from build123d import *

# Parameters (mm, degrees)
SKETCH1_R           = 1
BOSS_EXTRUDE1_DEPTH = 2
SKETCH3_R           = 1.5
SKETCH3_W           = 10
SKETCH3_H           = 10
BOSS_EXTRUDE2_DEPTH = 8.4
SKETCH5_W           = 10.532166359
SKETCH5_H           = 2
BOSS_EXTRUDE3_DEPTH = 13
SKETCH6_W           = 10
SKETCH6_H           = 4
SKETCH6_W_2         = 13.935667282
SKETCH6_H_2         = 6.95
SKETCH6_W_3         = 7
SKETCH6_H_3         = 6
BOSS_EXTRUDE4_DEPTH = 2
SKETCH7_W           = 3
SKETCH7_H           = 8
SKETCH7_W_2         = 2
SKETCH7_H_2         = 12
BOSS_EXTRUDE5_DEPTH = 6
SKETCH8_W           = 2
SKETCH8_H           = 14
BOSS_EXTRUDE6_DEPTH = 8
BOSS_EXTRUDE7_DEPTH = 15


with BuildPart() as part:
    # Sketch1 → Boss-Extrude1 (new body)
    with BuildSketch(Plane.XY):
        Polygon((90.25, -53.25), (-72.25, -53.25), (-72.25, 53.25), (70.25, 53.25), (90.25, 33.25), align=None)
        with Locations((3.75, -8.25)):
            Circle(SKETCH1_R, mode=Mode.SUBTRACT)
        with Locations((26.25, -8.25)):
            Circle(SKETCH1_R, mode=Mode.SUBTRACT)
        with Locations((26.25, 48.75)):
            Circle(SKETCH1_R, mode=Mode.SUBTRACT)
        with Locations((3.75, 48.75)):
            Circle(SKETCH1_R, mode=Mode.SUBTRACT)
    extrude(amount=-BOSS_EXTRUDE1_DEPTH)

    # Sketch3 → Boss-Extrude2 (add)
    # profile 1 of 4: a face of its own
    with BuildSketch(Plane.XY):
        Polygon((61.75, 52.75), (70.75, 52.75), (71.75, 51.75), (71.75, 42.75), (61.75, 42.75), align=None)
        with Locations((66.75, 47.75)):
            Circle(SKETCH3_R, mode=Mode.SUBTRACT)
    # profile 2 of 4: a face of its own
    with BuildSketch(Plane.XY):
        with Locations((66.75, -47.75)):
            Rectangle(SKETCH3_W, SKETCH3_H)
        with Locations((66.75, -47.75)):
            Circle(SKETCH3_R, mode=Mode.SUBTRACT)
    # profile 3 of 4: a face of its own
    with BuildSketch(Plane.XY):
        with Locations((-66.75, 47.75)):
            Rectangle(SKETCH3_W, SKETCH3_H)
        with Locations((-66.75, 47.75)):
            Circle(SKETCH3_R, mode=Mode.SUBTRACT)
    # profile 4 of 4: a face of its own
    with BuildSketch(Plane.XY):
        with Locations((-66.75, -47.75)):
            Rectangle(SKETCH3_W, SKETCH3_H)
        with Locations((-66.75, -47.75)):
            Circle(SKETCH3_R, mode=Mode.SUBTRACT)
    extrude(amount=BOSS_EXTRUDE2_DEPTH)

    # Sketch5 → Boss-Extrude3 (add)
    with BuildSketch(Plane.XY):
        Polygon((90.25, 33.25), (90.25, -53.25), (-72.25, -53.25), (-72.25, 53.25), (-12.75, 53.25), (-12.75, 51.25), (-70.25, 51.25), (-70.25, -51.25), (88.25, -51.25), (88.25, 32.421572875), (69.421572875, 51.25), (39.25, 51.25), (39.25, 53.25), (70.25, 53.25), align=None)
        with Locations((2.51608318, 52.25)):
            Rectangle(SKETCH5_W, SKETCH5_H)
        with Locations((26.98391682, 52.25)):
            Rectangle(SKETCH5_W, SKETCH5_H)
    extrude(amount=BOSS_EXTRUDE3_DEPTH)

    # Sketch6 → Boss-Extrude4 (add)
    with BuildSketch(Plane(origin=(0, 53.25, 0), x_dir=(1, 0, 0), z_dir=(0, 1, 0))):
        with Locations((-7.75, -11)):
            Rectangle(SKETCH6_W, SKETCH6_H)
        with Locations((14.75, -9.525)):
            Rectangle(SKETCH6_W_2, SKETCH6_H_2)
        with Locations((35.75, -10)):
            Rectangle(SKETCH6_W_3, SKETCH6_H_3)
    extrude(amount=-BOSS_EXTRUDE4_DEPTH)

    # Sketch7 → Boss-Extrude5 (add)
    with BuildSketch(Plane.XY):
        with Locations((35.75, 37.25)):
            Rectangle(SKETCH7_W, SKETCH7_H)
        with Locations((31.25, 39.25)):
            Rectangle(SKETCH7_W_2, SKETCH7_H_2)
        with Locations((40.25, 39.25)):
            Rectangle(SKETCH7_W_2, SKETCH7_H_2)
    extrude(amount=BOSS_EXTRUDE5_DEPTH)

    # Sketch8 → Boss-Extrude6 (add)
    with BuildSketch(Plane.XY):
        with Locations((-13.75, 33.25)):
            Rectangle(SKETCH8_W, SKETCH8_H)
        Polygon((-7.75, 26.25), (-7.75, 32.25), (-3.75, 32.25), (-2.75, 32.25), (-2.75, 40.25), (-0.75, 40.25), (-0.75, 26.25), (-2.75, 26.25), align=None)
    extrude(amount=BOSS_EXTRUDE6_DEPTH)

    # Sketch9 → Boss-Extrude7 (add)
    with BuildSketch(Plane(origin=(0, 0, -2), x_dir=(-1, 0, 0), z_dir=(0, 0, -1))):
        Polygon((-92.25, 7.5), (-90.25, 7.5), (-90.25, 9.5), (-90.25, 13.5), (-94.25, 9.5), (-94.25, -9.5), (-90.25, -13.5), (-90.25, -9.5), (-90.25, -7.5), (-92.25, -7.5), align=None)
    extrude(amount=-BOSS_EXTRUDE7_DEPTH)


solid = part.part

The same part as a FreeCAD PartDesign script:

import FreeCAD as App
import Part
import Sketcher

V = App.Vector
Q = App.Units.Quantity


def add_polygon(sketch, points):
    """Adds a closed chain of lines whose ends are joined by coincident constraints."""
    first, n = sketch.GeometryCount, len(points)
    for a, b in zip(points, points[1:] + points[:1]):
        sketch.addGeometry(Part.LineSegment(App.Vector(*a, 0), App.Vector(*b, 0)), False)
    for i in range(n):
        sketch.addConstraint(Sketcher.Constraint("Coincident", first + i, 2, first + (i + 1) % n, 1))

doc = App.newDocument("Part")
body = doc.addObject("PartDesign::Body", "Body")

sketch1 = doc.addObject("Sketcher::SketchObject", "Sketch")
body.addObject(sketch1)
sketch1.AttachmentSupport = (doc.XY_Plane, [""])
sketch1.MapMode = "FlatFace"
add_polygon(sketch1, [(-72.25, -53.25), (90.25, -53.25), (90.25, 33.25), (70.25, 53.25), (-72.25, 53.25)])
sketch1.addGeometry(Part.Circle(V(26.25, -8.25, 0), V(0, 0, 1), 1), False)
sketch1.addGeometry(Part.Circle(V(3.75, -8.25, 0), V(0, 0, 1), 1), False)
sketch1.addGeometry(Part.Circle(V(26.25, 48.75, 0), V(0, 0, 1), 1), False)
sketch1.addGeometry(Part.Circle(V(3.75, 48.75, 0), V(0, 0, 1), 1), False)
sketch1.addConstraint([
    Sketcher.Constraint("Horizontal", 0),
    Sketcher.Constraint("Vertical", 1),
    Sketcher.Constraint("Horizontal", 3),
    Sketcher.Constraint("Vertical", 4),
    Sketcher.Constraint("Equal", 5, 6),
    Sketcher.Constraint("Equal", 6, 7),
    Sketcher.Constraint("Equal", 7, 8),
    Sketcher.Constraint("Horizontal", 5, 3, 6, 3),
    Sketcher.Constraint("Horizontal", 7, 3, 8, 3),
    Sketcher.Constraint("Vertical", 5, 3, 7, 3),
    Sketcher.Constraint("Vertical", 6, 3, 8, 3),
    Sketcher.Constraint("Diameter", 5, 2.0),
    Sketcher.Constraint("Angle", 2, Q("135 deg")),
    Sketcher.Constraint("DistanceX", 0, 1, 0, 2, 162.5),
    Sketcher.Constraint("DistanceX", 3, 2, 3, 1, 142.5),
    Sketcher.Constraint("DistanceY", 1, 1, 1, 2, 86.5),
    Sketcher.Constraint("DistanceY", 5, 3, 7, 3, 57.0),
    Sketcher.Constraint("DistanceX", 5, 3, 0, 2, 64.0),
    Sketcher.Constraint("DistanceY", 0, 2, 5, 3, 45.0),
    Sketcher.Constraint("DistanceX", 3, 2, 8, 3, 76.0),
    Sketcher.Constraint("DistanceX", -1, 1, 5, 3, 26.25),
    Sketcher.Constraint("DistanceY", 5, 3, -1, 1, 8.25),
])
pad1 = doc.addObject("PartDesign::Pad", "Pad")
body.addObject(pad1)
pad1.Profile = sketch1
pad1.Length = 2
pad1.Reversed = True

sketch2 = doc.addObject("Sketcher::SketchObject", "Sketch001")
body.addObject(sketch2)
sketch2.AttachmentSupport = (doc.XY_Plane, [""])
sketch2.MapMode = "FlatFace"
add_polygon(sketch2, [(70.75, 52.75), (61.75, 52.75), (61.75, 42.75), (71.75, 42.75), (71.75, 51.75)])
sketch2.addGeometry(Part.Circle(V(66.75, 47.75, 0), V(0, 0, 1), 1.5), False)
add_polygon(sketch2, [(61.75, -42.75), (61.75, -52.75), (71.75, -52.75), (71.75, -42.75)])
sketch2.addGeometry(Part.Circle(V(66.75, -47.75, 0), V(0, 0, 1), 1.5), False)
add_polygon(sketch2, [(-71.75, 52.75), (-71.75, 42.75), (-61.75, 42.75), (-61.75, 52.75)])
sketch2.addGeometry(Part.Circle(V(-66.75, 47.75, 0), V(0, 0, 1), 1.5), False)
add_polygon(sketch2, [(-71.75, -42.75), (-71.75, -52.75), (-61.75, -52.75), (-61.75, -42.75)])
sketch2.addGeometry(Part.Circle(V(-66.75, -47.75, 0), V(0, 0, 1), 1.5), False)
sketch2.addConstraint([
    Sketcher.Constraint("Horizontal", 0),
    Sketcher.Constraint("Vertical", 1),
    Sketcher.Constraint("Horizontal", 2),
    Sketcher.Constraint("Vertical", 3),
    Sketcher.Constraint("Vertical", 6),
    Sketcher.Constraint("Horizontal", 7),
    Sketcher.Constraint("Vertical", 8),
    Sketcher.Constraint("Horizontal", 9),
    Sketcher.Constraint("Vertical", 11),
    Sketcher.Constraint("Horizontal", 12),
    Sketcher.Constraint("Vertical", 13),
    Sketcher.Constraint("Horizontal", 14),
    Sketcher.Constraint("Vertical", 16),
    Sketcher.Constraint("Horizontal", 17),
    Sketcher.Constraint("Vertical", 18),
    Sketcher.Constraint("Horizontal", 19),
    Sketcher.Constraint("Equal", 5, 10),
    Sketcher.Constraint("Equal", 10, 15),
    Sketcher.Constraint("Equal", 15, 20),
    Sketcher.Constraint("Symmetric", 10, 3, 15, 3, -1, 1),
    Sketcher.Constraint("Symmetric", 5, 3, 20, 3, -1, 1),
    Sketcher.Constraint("Symmetric", 8, 2, 11, 2, -1, 1),
    Sketcher.Constraint("Symmetric", 6, 2, 13, 2, -1, 1),
    Sketcher.Constraint("Symmetric", 0, 2, 17, 2, -1, 1),
    Sketcher.Constraint("Symmetric", 2, 2, 19, 2, -1, 1),
    Sketcher.Constraint("Symmetric", 5, 3, 15, 3, -2),
    Sketcher.Constraint("Symmetric", 2, 2, 11, 2, -2),
    Sketcher.Constraint("Symmetric", 0, 2, 13, 2, -2),
    Sketcher.Constraint("Equal", 19, 1),
    Sketcher.Constraint("Equal", 0, 3),
    Sketcher.Constraint("Diameter", 5, 3.0),
    Sketcher.Constraint("DistanceX", 0, 2, 0, 1, 9.0),
    Sketcher.Constraint("DistanceX", 2, 1, 2, 2, 10.0),
    Sketcher.Constraint("DistanceX", 0, 2, 5, 3, 5.0),
    Sketcher.Constraint("DistanceY", 5, 3, 0, 2, 5.0),
    Sketcher.Constraint("DistanceY", 10, 3, 5, 3, 95.5),
    Sketcher.Constraint("DistanceX", 15, 3, 5, 3, 133.5),
])
pad2 = doc.addObject("PartDesign::Pad", "Pad001")
body.addObject(pad2)
pad2.Profile = sketch2
pad2.Length = 8.4

sketch3 = doc.addObject("Sketcher::SketchObject", "Sketch002")
body.addObject(sketch3)
sketch3.AttachmentSupport = (doc.XY_Plane, [""])
sketch3.MapMode = "FlatFace"
add_polygon(sketch3, [(90.25, -53.25), (90.25, 33.25), (70.25, 53.25), (39.25, 53.25), (39.25, 51.25), (69.421573, 51.25), (88.25, 32.421573), (88.25, -51.25), (-70.25, -51.25), (-70.25, 51.25), (-12.75, 51.25), (-12.75, 53.25), (-72.25, 53.25), (-72.25, -53.25)])
add_polygon(sketch3, [(-2.75, 53.25), (-2.75, 51.25), (7.782166, 51.25), (7.782166, 53.25)])
add_polygon(sketch3, [(21.717834, 53.25), (21.717834, 51.25), (32.25, 51.25), (32.25, 53.25)])
sketch3.addConstraint([
    Sketcher.Constraint("Vertical", 0),
    Sketcher.Constraint("Horizontal", 2),
    Sketcher.Constraint("Vertical", 3),
    Sketcher.Constraint("Horizontal", 4),
    Sketcher.Constraint("Vertical", 6),
    Sketcher.Constraint("Horizontal", 7),
    Sketcher.Constraint("Vertical", 8),
    Sketcher.Constraint("Horizontal", 9),
    Sketcher.Constraint("Vertical", 10),
    Sketcher.Constraint("Horizontal", 11),
    Sketcher.Constraint("Vertical", 12),
    Sketcher.Constraint("Horizontal", 13),
    Sketcher.Constraint("Vertical", 14),
    Sketcher.Constraint("Horizontal", 15),
    Sketcher.Constraint("Vertical", 16),
    Sketcher.Constraint("Horizontal", 17),
    Sketcher.Constraint("Vertical", 18),
    Sketcher.Constraint("Horizontal", 19),
    Sketcher.Constraint("Vertical", 20),
    Sketcher.Constraint("Horizontal", 21),
    Sketcher.Constraint("Parallel", 1, 5),
    Sketcher.Constraint("Horizontal", 4, 2, 8, 2),
    Sketcher.Constraint("Horizontal", 2, 2, 10, 2),
    Sketcher.Constraint("Horizontal", 9, 2, 14, 2),
    Sketcher.Constraint("Horizontal", 11, 2, 16, 2),
    Sketcher.Constraint("Horizontal", 15, 2, 18, 2),
    Sketcher.Constraint("Horizontal", 17, 2, 20, 2),
    Sketcher.Constraint("Equal", 17, 19),
    Sketcher.Constraint("DistanceX", 2, 2, 2, 1, 31.0),
    Sketcher.Constraint("DistanceY", 3, 2, 3, 1, 2.0),
    Sketcher.Constraint("Angle", 1, Q("135 deg")),
    Sketcher.Constraint("DistanceX", 7, 2, 7, 1, 158.5),
    Sketcher.Constraint("DistanceX", 9, 1, 9, 2, 57.5),
    Sketcher.Constraint("DistanceX", 11, 2, 11, 1, 59.5),
    Sketcher.Constraint("DistanceX", 13, 1, 13, 2, 162.5),
    Sketcher.Constraint("DistanceY", 0, 1, 0, 2, 86.5),
    Sketcher.Constraint("DistanceY", 8, 1, 8, 2, 102.5),
    Sketcher.Constraint("DistanceY", 12, 2, 12, 1, 106.5),
    Sketcher.Constraint("DistanceX", 9, 2, 14, 2, 10.0),
    Sketcher.Constraint("DistanceX", 19, 2, 3, 2, 7.0),
    Sketcher.Constraint("DistanceX", -1, 1, 0, 2, 90.25),
    Sketcher.Constraint("DistanceY", -1, 1, 0, 2, 33.25),
    Sketcher.Constraint("DistanceX", 4, 1, 4, 2, 30.171573),
    Sketcher.Constraint("DistanceX", 15, 1, 15, 2, 10.532166),
])
pad3 = doc.addObject("PartDesign::Pad", "Pad002")
body.addObject(pad3)
pad3.Profile = sketch3
pad3.Length = 13

sketch4 = doc.addObject("Sketcher::SketchObject", "Sketch003")
body.addObject(sketch4)
sketch4.AttachmentSupport = (doc.XZ_Plane, [""])
sketch4.MapMode = "FlatFace"
sketch4.AttachmentOffset = App.Placement(V(0, 0, -53.25), App.Rotation())
add_polygon(sketch4, [(-12.75, 9), (-12.75, 13), (-2.75, 13), (-2.75, 9)])
add_polygon(sketch4, [(7.782166, 6.05), (7.782166, 13), (21.717834, 13), (21.717834, 6.05)])
add_polygon(sketch4, [(32.25, 7), (32.25, 13), (39.25, 13), (39.25, 7)])
sketch4.addConstraint([
    Sketcher.Constraint("Vertical", 0),
    Sketcher.Constraint("Horizontal", 1),
    Sketcher.Constraint("Vertical", 2),
    Sketcher.Constraint("Horizontal", 3),
    Sketcher.Constraint("Vertical", 4),
    Sketcher.Constraint("Horizontal", 5),
    Sketcher.Constraint("Vertical", 6),
    Sketcher.Constraint("Horizontal", 7),
    Sketcher.Constraint("Vertical", 8),
    Sketcher.Constraint("Horizontal", 9),
    Sketcher.Constraint("Vertical", 10),
    Sketcher.Constraint("Horizontal", 11),
    Sketcher.Constraint("Horizontal", 1, 2, 4, 2),
    Sketcher.Constraint("Horizontal", 5, 2, 8, 2),
    Sketcher.Constraint("DistanceX", 1, 1, 1, 2, 10.0),
    Sketcher.Constraint("DistanceX", 9, 1, 9, 2, 7.0),
    Sketcher.Constraint("DistanceY", 0, 1, 0, 2, 4.0),
    Sketcher.Constraint("DistanceY", 8, 1, 8, 2, 6.0),
    Sketcher.Constraint("DistanceY", -1, 1, 0, 2, 13.0),
    Sketcher.Constraint("DistanceX", 1, 2, 8, 2, 35.0),
    Sketcher.Constraint("DistanceY", 4, 1, 4, 2, 6.95),
    Sketcher.Constraint("DistanceX", 0, 2, -1, 1, 12.75),
    Sketcher.Constraint("DistanceX", 5, 1, 5, 2, 13.935667),
    Sketcher.Constraint("DistanceX", -1, 1, 4, 2, 7.782166),
])
pad4 = doc.addObject("PartDesign::Pad", "Pad003")
body.addObject(pad4)
pad4.Profile = sketch4
pad4.Length = 2

sketch5 = doc.addObject("Sketcher::SketchObject", "Sketch004")
body.addObject(sketch5)
sketch5.AttachmentSupport = (doc.XY_Plane, [""])
sketch5.MapMode = "FlatFace"
add_polygon(sketch5, [(34.25, 41.25), (34.25, 33.25), (37.25, 33.25), (37.25, 41.25)])
add_polygon(sketch5, [(30.25, 45.25), (30.25, 33.25), (32.25, 33.25), (32.25, 45.25)])
add_polygon(sketch5, [(39.25, 45.25), (39.25, 33.25), (41.25, 33.25), (41.25, 45.25)])
sketch5.addConstraint([
    Sketcher.Constraint("Vertical", 0),
    Sketcher.Constraint("Horizontal", 1),
    Sketcher.Constraint("Vertical", 2),
    Sketcher.Constraint("Horizontal", 3),
    Sketcher.Constraint("Vertical", 4),
    Sketcher.Constraint("Horizontal", 5),
    Sketcher.Constraint("Vertical", 6),
    Sketcher.Constraint("Horizontal", 7),
    Sketcher.Constraint("Vertical", 8),
    Sketcher.Constraint("Horizontal", 9),
    Sketcher.Constraint("Vertical", 10),
    Sketcher.Constraint("Horizontal", 11),
    Sketcher.Constraint("Horizontal", 1, 2, 4, 2),
    Sketcher.Constraint("Horizontal", 5, 2, 8, 2),
    Sketcher.Constraint("Horizontal", 7, 2, 10, 2),
    Sketcher.Constraint("Equal", 7, 9),
    Sketcher.Constraint("DistanceX", 1, 1, 1, 2, 3.0),
    Sketcher.Constraint("DistanceX", 5, 1, 5, 2, 2.0),
    Sketcher.Constraint("DistanceY", 0, 2, 0, 1, 8.0),
    Sketcher.Constraint("DistanceY", 4, 2, 4, 1, 12.0),
    Sketcher.Constraint("DistanceX", 4, 2, 0, 2, 4.0),
    Sketcher.Constraint("DistanceX", 1, 2, 8, 2, 2.0),
    Sketcher.Constraint("DistanceX", -1, 1, 0, 2, 34.25),
    Sketcher.Constraint("DistanceY", -1, 1, 0, 2, 33.25),
])
pad5 = doc.addObject("PartDesign::Pad", "Pad004")
body.addObject(pad5)
pad5.Profile = sketch5
pad5.Length = 6

sketch6 = doc.addObject("Sketcher::SketchObject", "Sketch005")
body.addObject(sketch6)
sketch6.AttachmentSupport = (doc.XY_Plane, [""])
sketch6.MapMode = "FlatFace"
add_polygon(sketch6, [(-14.75, 40.25), (-14.75, 26.25), (-12.75, 26.25), (-12.75, 40.25)])
add_polygon(sketch6, [(-7.75, 32.25), (-7.75, 26.25), (-0.75, 26.25), (-0.75, 40.25), (-2.75, 40.25), (-2.75, 32.25)])
sketch6.addConstraint([
    Sketcher.Constraint("Vertical", 0),
    Sketcher.Constraint("Horizontal", 1),
    Sketcher.Constraint("Vertical", 2),
    Sketcher.Constraint("Horizontal", 3),
    Sketcher.Constraint("Vertical", 4),
    Sketcher.Constraint("Horizontal", 5),
    Sketcher.Constraint("Vertical", 6),
    Sketcher.Constraint("Horizontal", 7),
    Sketcher.Constraint("Vertical", 8),
    Sketcher.Constraint("Horizontal", 9),
    Sketcher.Constraint("Horizontal", 1, 2, 4, 2),
    Sketcher.Constraint("Horizontal", 3, 2, 6, 2),
    Sketcher.Constraint("Equal", 3, 7),
    Sketcher.Constraint("DistanceX", 1, 1, 1, 2, 2.0),
    Sketcher.Constraint("DistanceX", 5, 1, 5, 2, 7.0),
    Sketcher.Constraint("DistanceY", 0, 2, 0, 1, 14.0),
    Sketcher.Constraint("DistanceY", 4, 2, 4, 1, 6.0),
    Sketcher.Constraint("DistanceX", 1, 2, 4, 2, 5.0),
    Sketcher.Constraint("DistanceX", 0, 2, -1, 1, 14.75),
    Sketcher.Constraint("DistanceY", -1, 1, 0, 2, 26.25),
])
pad6 = doc.addObject("PartDesign::Pad", "Pad005")
body.addObject(pad6)
pad6.Profile = sketch6
pad6.Length = 8

sketch7 = doc.addObject("Sketcher::SketchObject", "Sketch006")
body.addObject(sketch7)
sketch7.AttachmentSupport = (doc.XY_Plane, [""])
sketch7.MapMode = "FlatFace"
sketch7.AttachmentOffset = App.Placement(V(0, 0, -2), App.Rotation())
add_polygon(sketch7, [(92.25, 7.5), (90.25, 7.5), (90.25, 13.5), (94.25, 9.5), (94.25, -9.5), (90.25, -13.5), (90.25, -7.5), (92.25, -7.5)])
sketch7.addConstraint([
    Sketcher.Constraint("Horizontal", 0),
    Sketcher.Constraint("Vertical", 1),
    Sketcher.Constraint("Vertical", 3),
    Sketcher.Constraint("Vertical", 5),
    Sketcher.Constraint("Horizontal", 6),
    Sketcher.Constraint("Vertical", 7),
    Sketcher.Constraint("Symmetric", 1, 2, 4, 2, -1),
    Sketcher.Constraint("Perpendicular", 2, 4),
    Sketcher.Constraint("Equal", 1, 5),
    Sketcher.Constraint("Equal", 2, 4),
    Sketcher.Constraint("DistanceX", 0, 2, 0, 1, 2.0),
    Sketcher.Constraint("DistanceY", 1, 1, 1, 2, 6.0),
    Sketcher.Constraint("DistanceY", 3, 2, 3, 1, 19.0),
    Sketcher.Constraint("DistanceY", 7, 1, 7, 2, 15.0),
    Sketcher.Constraint("DistanceX", -1, 1, 0, 2, 90.25),
])
pad7 = doc.addObject("PartDesign::Pad", "Pad006")
body.addObject(pad7)
pad7.Profile = sketch7
pad7.Length = 15

doc.recompute()
